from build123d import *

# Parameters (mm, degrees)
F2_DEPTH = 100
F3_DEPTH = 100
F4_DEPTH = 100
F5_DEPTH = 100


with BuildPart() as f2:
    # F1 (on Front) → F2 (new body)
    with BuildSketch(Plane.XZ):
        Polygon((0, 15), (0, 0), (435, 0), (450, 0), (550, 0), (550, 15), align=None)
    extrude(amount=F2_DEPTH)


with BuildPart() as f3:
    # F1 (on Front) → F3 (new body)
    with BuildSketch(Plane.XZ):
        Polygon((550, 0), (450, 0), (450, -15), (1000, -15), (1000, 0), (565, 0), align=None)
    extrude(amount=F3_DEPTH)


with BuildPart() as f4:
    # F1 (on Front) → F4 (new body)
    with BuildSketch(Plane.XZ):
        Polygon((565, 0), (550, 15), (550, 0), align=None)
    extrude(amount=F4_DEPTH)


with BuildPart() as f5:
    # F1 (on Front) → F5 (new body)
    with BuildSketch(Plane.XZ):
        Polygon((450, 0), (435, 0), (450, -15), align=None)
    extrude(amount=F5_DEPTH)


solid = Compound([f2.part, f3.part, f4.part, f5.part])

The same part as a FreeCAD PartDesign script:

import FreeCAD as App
import Part
import Sketcher
from FreeCAD import Vector
Q = App.Units.Quantity


def add_polygon(sketch, points):
    """Adds a closed chain of lines whose ends are joined by coincident constraints."""
    first, n = sketch.GeometryCount, len(points)
    for a, b in zip(points, points[1:] + points[:1]):
        sketch.addGeometry(Part.LineSegment(App.Vector(*a, 0), App.Vector(*b, 0)), False)
    for i in range(n):
        sketch.addConstraint(Sketcher.Constraint("Coincident", first + i, 2, first + (i + 1) % n, 1))

doc = App.newDocument("Part")
body = doc.addObject("PartDesign::Body", "Body")

sketch1 = body.newObject("Sketcher::SketchObject", "Sketch")
sketch1.AttachmentSupport = (doc.getObject("XZ_Plane"), [""])
sketch1.MapMode = "FlatFace"
add_polygon(sketch1, [(0, 15), (0, 0), (550, 0), (550, 15)])
sketch1.addConstraint([
    Sketcher.Constraint("Vertical", 0),
    Sketcher.Constraint("Horizontal", 1),
    Sketcher.Constraint("Vertical", 2),
    Sketcher.Constraint("Horizontal", 3),
    Sketcher.Constraint("Coincident", 0, 2, -1, 1),
    Sketcher.Constraint("DistanceX", 1, 1, 1, 2, Q("550 mm")),
    Sketcher.Constraint("DistanceY", 0, 2, 0, 1, Q("15 mm")),
])
pad1 = body.newObject("PartDesign::Pad", "Pad")
pad1.Profile = sketch1
pad1.Length = 100
body2 = doc.addObject("PartDesign::Body", "Body001")

sketch2 = body2.newObject("Sketcher::SketchObject", "Sketch001")
sketch2.AttachmentSupport = (doc.getObject("XZ_Plane001"), [""])
sketch2.MapMode = "FlatFace"
add_polygon(sketch2, [(450, 0), (450, -15), (1000, -15), (1000, 0)])
sketch2.addConstraint([
    Sketcher.Constraint("Vertical", 0),
    Sketcher.Constraint("Horizontal", 1),
    Sketcher.Constraint("Vertical", 2),
    Sketcher.Constraint("Horizontal", 3),
    Sketcher.Constraint("PointOnObject", 2, 2, -1),
    Sketcher.Constraint("DistanceX", 1, 1, 1, 2, Q("550 mm")),
    Sketcher.Constraint("DistanceY", 0, 2, 0, 1, Q("15 mm")),
    Sketcher.Constraint("DistanceX", -1, 1, 0, 2, Q("450 mm")),
])
pad2 = body2.newObject("PartDesign::Pad", "Pad001")
pad2.Profile = sketch2
pad2.Length = 100
body3 = doc.addObject("PartDesign::Body", "Body002")

sketch3 = body3.newObject("Sketcher::SketchObject", "Sketch002")
sketch3.AttachmentSupport = (doc.getObject("XZ_Plane002"), [""])
sketch3.MapMode = "FlatFace"
add_polygon(sketch3, [(565, 0), (550, 15), (550, 0)])
sketch3.addConstraint([
    Sketcher.Constraint("Vertical", 1),
    Sketcher.Constraint("Horizontal", 2),
    Sketcher.Constraint("PointOnObject", 1, 2, -1),
    Sketcher.Constraint("Equal", 2, 1),
    Sketcher.Constraint("DistanceX", 2, 1, 2, 2, Q("15 mm")),
    Sketcher.Constraint("DistanceX", -1, 1, 0, 2, Q("550 mm")),
])
pad3 = body3.newObject("PartDesign::Pad", "Pad002")
pad3.Profile = sketch3
pad3.Length = 100
body4 = doc.addObject("PartDesign::Body", "Body003")

sketch4 = body4.newObject("Sketcher::SketchObject", "Sketch003")
sketch4.AttachmentSupport = (doc.getObject("XZ_Plane003"), [""])
sketch4.MapMode = "FlatFace"
add_polygon(sketch4, [(450, 0), (435, 0), (450, -15)])
sketch4.addConstraint([
    Sketcher.Constraint("Horizontal", 0),
    Sketcher.Constraint("Vertical", 2),
    Sketcher.Constraint("PointOnObject", 0, 2, -1),
    Sketcher.Constraint("Equal", 0, 2),
    Sketcher.Constraint("DistanceX", 0, 2, 0, 1, Q("15 mm")),
    Sketcher.Constraint("DistanceX", -1, 1, 0, 2, Q("435 mm")),
])
pad4 = body4.newObject("PartDesign::Pad", "Pad003")
pad4.Profile = sketch4
pad4.Length = 100

doc.recompute()
